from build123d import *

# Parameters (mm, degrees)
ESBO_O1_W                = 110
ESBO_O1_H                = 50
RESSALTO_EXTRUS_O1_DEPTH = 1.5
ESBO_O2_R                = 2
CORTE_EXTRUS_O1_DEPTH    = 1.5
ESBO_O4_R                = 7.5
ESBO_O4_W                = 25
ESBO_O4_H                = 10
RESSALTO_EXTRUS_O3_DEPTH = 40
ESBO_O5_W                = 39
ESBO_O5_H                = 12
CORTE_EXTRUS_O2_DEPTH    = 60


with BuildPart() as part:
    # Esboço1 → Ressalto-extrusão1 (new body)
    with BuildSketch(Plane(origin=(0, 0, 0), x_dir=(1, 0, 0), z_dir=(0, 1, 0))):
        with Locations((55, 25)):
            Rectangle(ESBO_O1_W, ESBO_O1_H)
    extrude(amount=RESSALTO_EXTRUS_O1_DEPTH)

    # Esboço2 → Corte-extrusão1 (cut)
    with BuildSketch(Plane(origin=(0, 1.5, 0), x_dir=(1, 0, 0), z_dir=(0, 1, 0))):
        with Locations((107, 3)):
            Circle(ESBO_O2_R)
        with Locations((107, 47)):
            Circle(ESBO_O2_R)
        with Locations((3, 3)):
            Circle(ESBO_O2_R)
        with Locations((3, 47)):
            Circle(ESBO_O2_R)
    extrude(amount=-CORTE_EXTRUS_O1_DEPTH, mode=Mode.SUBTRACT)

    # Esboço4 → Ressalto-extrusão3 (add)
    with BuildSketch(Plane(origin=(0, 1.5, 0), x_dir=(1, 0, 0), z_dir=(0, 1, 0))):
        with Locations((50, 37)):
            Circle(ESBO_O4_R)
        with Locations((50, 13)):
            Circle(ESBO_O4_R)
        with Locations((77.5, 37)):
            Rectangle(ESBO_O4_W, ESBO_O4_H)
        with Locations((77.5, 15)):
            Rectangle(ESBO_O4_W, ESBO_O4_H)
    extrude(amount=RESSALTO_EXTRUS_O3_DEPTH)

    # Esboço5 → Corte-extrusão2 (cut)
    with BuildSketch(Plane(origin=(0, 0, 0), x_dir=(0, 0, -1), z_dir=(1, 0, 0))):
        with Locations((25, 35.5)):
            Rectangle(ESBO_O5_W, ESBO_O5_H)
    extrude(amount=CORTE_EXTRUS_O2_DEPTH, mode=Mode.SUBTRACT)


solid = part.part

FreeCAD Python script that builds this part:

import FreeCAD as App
import Part
import Sketcher


def add_polygon(sketch, points):
    """Adds a closed chain of lines whose ends are joined by coincident constraints."""
    first, n = sketch.GeometryCount, len(points)
    for a, b in zip(points, points[1:] + points[:1]):
        sketch.addGeometry(Part.LineSegment(App.Vector(*a, 0), App.Vector(*b, 0)), False)
    for i in range(n):
        sketch.addConstraint(Sketcher.Constraint("Coincident", first + i, 2, first + (i + 1) % n, 1))

doc = App.newDocument("Part")
params = doc.addObject("Spreadsheet::Sheet", "Params")
for row, (alias, value) in enumerate([
    ("sketch1_width", "110 mm"),
    ("sketch1_height", "50 mm"),
    ("pad1_length", "1.5 mm"),
    ("sketch2_diameter", "4 mm"),
    ("pocket1_length", "1.5 mm"),
    ("sketch3_diameter", "15 mm"),
    ("sketch3_width", "25 mm"),
    ("sketch3_height", "10 mm"),
    ("pad2_length", "40 mm"),
    ("sketch4_width", "12 mm"),
    ("sketch4_height", "39 mm"),
    ("pocket2_length", "60 mm"),
], start=1):
    params.set(f"A{row}", alias)
    params.set(f"B{row}", "=" + value)
    params.setAlias(f"B{row}", alias)

body = doc.addObject("PartDesign::Body", "Body")

# Sketch on XZ plane
sketch1 = doc.addObject("Sketcher::SketchObject", "Sketch")
body.addObject(sketch1)
sketch1.AttachmentSupport = (doc.XZ_Plane, [""])
sketch1.MapMode = "FlatFace"
add_polygon(sketch1, [(0, -50), (0, 0), (110, 0), (110, -50)])  # lines 0-3
sketch1.addConstraint([
    Sketcher.Constraint("Vertical", 0),
    Sketcher.Constraint("Horizontal", 1),
    Sketcher.Constraint("Vertical", 2),
    Sketcher.Constraint("Horizontal", 3),
    Sketcher.Constraint("Coincident", 0, 2, -1, 1),
    Sketcher.Constraint("DistanceX", 1, 1, 1, 2, 110.0),
    Sketcher.Constraint("DistanceY", 0, 1, 0, 2, 50.0),
])
sketch1.setExpression("Constraints[9]", "Params.sketch1_width")
sketch1.setExpression("Constraints[10]", "Params.sketch1_height")
pad1 = doc.addObject("PartDesign::Pad", "Pad")
body.addObject(pad1)
pad1.Profile = sketch1
pad1.setExpression("Length", "Params.pad1_length")
pad1.Reversed = True

# Sketch on XZ plane
sketch2 = doc.addObject("Sketcher::SketchObject", "Sketch001")
body.addObject(sketch2)
sketch2.AttachmentSupport = (doc.XZ_Plane, [""])
sketch2.MapMode = "FlatFace"
sketch2.AttachmentOffset = App.Placement(App.Vector(0, 0, -1.5), App.Rotation())
sketch2.addGeometry([
    Part.Circle(App.Vector(107, -3, 0), App.Vector(0, 0, 1), 2),
    Part.Circle(App.Vector(107, -47, 0), App.Vector(0, 0, 1), 2),
    Part.Circle(App.Vector(3, -3, 0), App.Vector(0, 0, 1), 2),
    Part.Circle(App.Vector(3, -47, 0), App.Vector(0, 0, 1), 2),
], False)
sketch2.addConstraint([
    Sketcher.Constraint("Equal", 0, 1),
    Sketcher.Constraint("Equal", 1, 2),
    Sketcher.Constraint("Equal", 2, 3),
    Sketcher.Constraint("Horizontal", 0, 3, 2, 3),
    Sketcher.Constraint("Horizontal", 1, 3, 3, 3),
    Sketcher.Constraint("Vertical", 0, 3, 1, 3),
    Sketcher.Constraint("Vertical", 2, 3, 3, 3),
    Sketcher.Constraint("Diameter", 0, 4.0),
    Sketcher.Constraint("DistanceX", -1, 1, 0, 3, 107.0),
    Sketcher.Constraint("DistanceY", 0, 3, -1, 1, 3.0),
    Sketcher.Constraint("DistanceY", 1, 3, -1, 1, 47.0),
    Sketcher.Constraint("DistanceX", -1, 1, 2, 3, 3.0),
])
sketch2.setExpression("Constraints[7]", "Params.sketch2_diameter")
pocket1 = doc.addObject("PartDesign::Pocket", "Pocket")
body.addObject(pocket1)
pocket1.Profile = sketch2
pocket1.setExpression("Length", "Params.pocket1_length")
pocket1.Reversed = True

# Sketch on XZ plane
sketch3 = doc.addObject("Sketcher::SketchObject", "Sketch002")
body.addObject(sketch3)
sketch3.AttachmentSupport = (doc.XZ_Plane, [""])
sketch3.MapMode = "FlatFace"
sketch3.AttachmentOffset = App.Placement(App.Vector(0, 0, -1.5), App.Rotation())
sketch3.addGeometry(Part.Circle(App.Vector(50, -37, 0), App.Vector(0, 0, 1), 8), False)  # 0
sketch3.addGeometry(Part.Circle(App.Vector(50, -13, 0), App.Vector(0, 0, 1), 8), False)  # 1
add_polygon(sketch3, [(65, -42), (65, -32), (90, -32), (90, -42)])  # lines 2-5
add_polygon(sketch3, [(65, -20), (65, -10), (90, -10), (90, -20)])  # lines 6-9
sketch3.addConstraint([
    Sketcher.Constraint("Vertical", 2),
    Sketcher.Constraint("Horizontal", 3),
    Sketcher.Constraint("Vertical", 4),
    Sketcher.Constraint("Horizontal", 5),
    Sketcher.Constraint("Vertical", 6),
    Sketcher.Constraint("Horizontal", 7),
    Sketcher.Constraint("Vertical", 8),
    Sketcher.Constraint("Horizontal", 9),
    Sketcher.Constraint("Equal", 0, 1),
    Sketcher.Constraint("Vertical", 0, 3, 1, 3),
    Sketcher.Constraint("Vertical", 5, 2, 6, 2),
    Sketcher.Constraint("Vertical", 4, 2, 7, 2),
    Sketcher.Constraint("Equal", 4, 6),
    Sketcher.Constraint("Diameter", 0, 15.0),
    Sketcher.Constraint("DistanceX", 3, 1, 3, 2, 25.0),
    Sketcher.Constraint("DistanceY", 2, 1, 2, 2, 10.0),
    Sketcher.Constraint("DistanceX", -1, 1, 0, 3, 50.0),
    Sketcher.Constraint("DistanceY", 0, 3, -1, 1, 37.0),
    Sketcher.Constraint("DistanceY", 1, 3, -1, 1, 13.0),
    Sketcher.Constraint("DistanceX", -1, 1, 2, 2, 65.0),
    Sketcher.Constraint("DistanceY", 2, 2, -1, 1, 32.0),
    Sketcher.Constraint("DistanceY", 6, 2, -1, 1, 10.0),
])
sketch3.setExpression("Constraints[21]", "Params.sketch3_diameter")
sketch3.setExpression("Constraints[22]", "Params.sketch3_width")
sketch3.setExpression("Constraints[23]", "Params.sketch3_height")
pad2 = doc.addObject("PartDesign::Pad", "Pad001")
body.addObject(pad2)
pad2.Profile = sketch3
pad2.setExpression("Length", "Params.pad2_length")
pad2.Reversed = True

# Sketch on YZ plane
sketch4 = doc.addObject("Sketcher::SketchObject", "Sketch003")
body.addObject(sketch4)
sketch4.AttachmentSupport = (doc.YZ_Plane, [""])
sketch4.MapMode = "FlatFace"
add_polygon(sketch4, [(42, -6), (30, -6), (30, -44), (42, -44)])  # lines 0-3
sketch4.addConstraint([
    Sketcher.Constraint("Horizontal", 0),
    Sketcher.Constraint("Vertical", 1),
    Sketcher.Constraint("Horizontal", 2),
    Sketcher.Constraint("Vertical", 3),
    Sketcher.Constraint("DistanceX", 0, 2, 0, 1, 12.0),
    Sketcher.Constraint("DistanceY", 1, 2, 1, 1, 39.0),
    Sketcher.Constraint("DistanceX", -1, 1, 0, 2, 29.5),
    Sketcher.Constraint("DistanceY", 0, 2, -1, 1, 5.5),
])
sketch4.setExpression("Constraints[8]", "Params.sketch4_width")
sketch4.setExpression("Constraints[9]", "Params.sketch4_height")
pocket2 = doc.addObject("PartDesign::Pocket", "Pocket001")
body.addObject(pocket2)
pocket2.Profile = sketch4
pocket2.setExpression("Length", "Params.pocket2_length")
pocket2.Reversed = True

doc.recompute()
